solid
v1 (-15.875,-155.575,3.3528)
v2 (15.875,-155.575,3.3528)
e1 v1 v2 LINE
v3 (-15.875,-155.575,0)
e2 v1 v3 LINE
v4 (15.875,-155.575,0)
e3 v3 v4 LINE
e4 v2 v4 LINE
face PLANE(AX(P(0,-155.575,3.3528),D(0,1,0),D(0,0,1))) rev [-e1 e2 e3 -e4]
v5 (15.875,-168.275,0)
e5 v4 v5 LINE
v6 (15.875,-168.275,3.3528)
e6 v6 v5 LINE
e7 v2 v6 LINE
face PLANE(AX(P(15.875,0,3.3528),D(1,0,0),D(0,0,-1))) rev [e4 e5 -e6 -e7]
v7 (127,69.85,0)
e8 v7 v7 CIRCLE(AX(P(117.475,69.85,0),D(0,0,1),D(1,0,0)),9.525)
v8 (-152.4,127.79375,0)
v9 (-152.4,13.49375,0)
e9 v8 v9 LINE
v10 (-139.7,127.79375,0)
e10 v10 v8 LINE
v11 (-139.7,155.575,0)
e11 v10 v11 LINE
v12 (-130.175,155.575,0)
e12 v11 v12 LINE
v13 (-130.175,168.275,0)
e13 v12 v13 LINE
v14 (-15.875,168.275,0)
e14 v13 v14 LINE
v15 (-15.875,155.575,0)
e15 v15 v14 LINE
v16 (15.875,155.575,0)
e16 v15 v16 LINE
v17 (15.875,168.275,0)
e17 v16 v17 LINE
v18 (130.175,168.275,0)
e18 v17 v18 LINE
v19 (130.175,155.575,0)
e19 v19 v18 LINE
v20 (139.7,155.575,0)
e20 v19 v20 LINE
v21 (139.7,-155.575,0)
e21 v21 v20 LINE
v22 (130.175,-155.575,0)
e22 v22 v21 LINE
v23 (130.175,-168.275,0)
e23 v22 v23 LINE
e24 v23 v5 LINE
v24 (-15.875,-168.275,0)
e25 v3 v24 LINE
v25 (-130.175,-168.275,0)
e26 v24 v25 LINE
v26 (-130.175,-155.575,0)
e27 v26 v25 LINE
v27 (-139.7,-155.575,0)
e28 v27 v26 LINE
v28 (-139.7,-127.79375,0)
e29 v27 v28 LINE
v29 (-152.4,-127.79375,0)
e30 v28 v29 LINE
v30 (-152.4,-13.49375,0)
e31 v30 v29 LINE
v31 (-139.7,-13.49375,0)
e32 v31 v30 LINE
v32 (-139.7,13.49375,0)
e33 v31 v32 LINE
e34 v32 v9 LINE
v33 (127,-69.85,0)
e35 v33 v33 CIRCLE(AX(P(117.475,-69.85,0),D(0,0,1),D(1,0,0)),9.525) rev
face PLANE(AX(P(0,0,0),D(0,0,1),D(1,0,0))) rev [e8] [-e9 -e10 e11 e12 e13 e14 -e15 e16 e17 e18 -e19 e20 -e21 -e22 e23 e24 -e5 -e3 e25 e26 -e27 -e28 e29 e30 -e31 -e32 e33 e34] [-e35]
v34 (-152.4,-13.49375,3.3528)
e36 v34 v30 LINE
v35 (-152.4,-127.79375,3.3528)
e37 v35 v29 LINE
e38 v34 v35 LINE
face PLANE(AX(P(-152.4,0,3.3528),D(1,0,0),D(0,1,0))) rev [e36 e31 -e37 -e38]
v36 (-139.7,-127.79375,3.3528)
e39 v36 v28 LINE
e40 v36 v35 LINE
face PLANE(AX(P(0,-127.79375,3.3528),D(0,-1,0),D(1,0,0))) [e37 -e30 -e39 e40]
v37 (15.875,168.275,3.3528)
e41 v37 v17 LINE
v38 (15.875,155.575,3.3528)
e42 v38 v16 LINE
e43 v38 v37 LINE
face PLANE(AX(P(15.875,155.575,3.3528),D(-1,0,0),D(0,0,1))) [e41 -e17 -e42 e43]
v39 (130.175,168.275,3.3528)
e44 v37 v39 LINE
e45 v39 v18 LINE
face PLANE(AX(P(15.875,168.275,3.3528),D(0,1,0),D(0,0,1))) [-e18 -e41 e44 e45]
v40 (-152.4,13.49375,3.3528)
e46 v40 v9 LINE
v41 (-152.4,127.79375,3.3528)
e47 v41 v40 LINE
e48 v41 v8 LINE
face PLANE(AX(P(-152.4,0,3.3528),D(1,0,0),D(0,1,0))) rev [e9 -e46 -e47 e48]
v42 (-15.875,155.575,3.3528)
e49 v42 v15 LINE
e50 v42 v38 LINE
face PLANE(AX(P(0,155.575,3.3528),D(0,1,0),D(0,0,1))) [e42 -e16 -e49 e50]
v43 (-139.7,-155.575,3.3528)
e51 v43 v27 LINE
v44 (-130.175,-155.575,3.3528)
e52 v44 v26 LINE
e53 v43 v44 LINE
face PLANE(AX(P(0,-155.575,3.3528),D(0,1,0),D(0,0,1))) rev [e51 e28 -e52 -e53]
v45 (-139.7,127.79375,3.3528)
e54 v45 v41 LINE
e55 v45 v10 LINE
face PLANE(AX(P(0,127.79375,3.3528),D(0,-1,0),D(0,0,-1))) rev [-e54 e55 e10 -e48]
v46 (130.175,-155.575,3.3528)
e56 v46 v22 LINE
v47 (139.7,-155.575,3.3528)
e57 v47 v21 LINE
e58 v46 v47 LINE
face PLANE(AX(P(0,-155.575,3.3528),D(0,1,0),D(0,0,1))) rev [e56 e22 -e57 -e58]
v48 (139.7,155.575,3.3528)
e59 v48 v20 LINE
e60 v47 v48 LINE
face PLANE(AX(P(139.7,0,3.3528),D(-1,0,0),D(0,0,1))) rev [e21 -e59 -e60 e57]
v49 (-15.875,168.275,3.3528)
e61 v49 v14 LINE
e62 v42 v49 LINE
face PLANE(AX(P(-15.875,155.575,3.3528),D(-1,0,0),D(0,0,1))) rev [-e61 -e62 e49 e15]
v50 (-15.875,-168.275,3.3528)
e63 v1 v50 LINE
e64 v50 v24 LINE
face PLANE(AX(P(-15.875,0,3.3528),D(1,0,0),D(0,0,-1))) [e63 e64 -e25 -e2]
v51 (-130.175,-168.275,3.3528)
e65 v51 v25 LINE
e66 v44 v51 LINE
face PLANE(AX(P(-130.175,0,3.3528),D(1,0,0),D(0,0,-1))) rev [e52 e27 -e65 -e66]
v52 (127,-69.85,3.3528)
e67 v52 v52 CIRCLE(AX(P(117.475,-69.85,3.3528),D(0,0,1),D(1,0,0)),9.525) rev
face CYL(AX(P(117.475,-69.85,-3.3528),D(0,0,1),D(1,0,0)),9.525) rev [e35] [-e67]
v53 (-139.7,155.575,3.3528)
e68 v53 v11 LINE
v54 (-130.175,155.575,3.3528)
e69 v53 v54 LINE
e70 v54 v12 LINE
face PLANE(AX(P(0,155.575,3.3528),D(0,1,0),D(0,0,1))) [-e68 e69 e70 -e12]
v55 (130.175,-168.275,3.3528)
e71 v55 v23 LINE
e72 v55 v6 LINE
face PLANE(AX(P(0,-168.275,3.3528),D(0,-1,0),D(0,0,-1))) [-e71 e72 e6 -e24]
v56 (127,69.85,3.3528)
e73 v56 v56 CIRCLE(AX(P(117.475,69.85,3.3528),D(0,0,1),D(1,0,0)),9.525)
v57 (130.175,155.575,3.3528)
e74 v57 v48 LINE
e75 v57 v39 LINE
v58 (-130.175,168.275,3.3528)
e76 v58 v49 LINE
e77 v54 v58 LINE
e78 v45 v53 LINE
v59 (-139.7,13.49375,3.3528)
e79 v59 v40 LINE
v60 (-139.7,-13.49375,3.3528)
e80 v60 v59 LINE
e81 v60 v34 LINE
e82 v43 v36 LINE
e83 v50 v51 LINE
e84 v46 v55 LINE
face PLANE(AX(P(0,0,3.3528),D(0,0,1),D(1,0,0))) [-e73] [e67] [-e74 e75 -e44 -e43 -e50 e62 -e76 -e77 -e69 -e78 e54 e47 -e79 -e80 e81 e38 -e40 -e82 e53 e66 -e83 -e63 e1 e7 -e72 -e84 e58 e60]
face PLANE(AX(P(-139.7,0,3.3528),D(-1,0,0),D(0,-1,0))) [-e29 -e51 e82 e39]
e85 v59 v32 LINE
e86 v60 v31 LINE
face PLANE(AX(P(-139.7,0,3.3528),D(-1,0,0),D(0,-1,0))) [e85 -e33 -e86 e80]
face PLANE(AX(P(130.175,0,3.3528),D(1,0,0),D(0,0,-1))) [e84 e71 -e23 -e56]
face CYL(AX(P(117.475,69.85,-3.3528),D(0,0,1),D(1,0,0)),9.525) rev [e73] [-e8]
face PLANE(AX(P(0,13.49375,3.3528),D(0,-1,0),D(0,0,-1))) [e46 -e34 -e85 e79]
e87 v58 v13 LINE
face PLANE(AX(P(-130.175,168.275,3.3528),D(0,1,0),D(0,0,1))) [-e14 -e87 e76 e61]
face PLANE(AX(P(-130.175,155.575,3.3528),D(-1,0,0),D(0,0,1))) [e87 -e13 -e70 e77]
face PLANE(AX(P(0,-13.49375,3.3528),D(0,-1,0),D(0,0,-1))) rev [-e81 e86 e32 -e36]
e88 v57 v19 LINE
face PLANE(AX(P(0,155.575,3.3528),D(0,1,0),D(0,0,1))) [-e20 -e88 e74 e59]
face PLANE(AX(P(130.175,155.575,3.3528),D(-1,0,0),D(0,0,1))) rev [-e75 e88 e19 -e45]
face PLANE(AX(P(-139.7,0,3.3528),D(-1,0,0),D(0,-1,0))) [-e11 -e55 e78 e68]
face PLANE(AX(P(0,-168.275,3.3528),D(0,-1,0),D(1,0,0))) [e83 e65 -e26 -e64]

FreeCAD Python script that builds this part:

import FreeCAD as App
import Part
import Sketcher
Q = App.Units.Quantity

doc = App.newDocument("Part")
body = doc.addObject("PartDesign::Body", "Body")

# Sketch on XY plane
sketch1 = doc.addObject("Sketcher::SketchObject", "Sketch")
body.addObject(sketch1)
sketch1.AttachmentSupport = (doc.XY_Plane, [""])
sketch1.MapMode = "FlatFace"
sketch1.addGeometry([
    Part.LineSegment(App.Vector(-140, -128, 0), App.Vector(-140, -156, 0)),  # 0
    Part.LineSegment(App.Vector(-140, -156, 0), App.Vector(-130, -156, 0)),  # 1
    Part.LineSegment(App.Vector(-130, -156, 0), App.Vector(-130, -168, 0)),  # 2
    Part.LineSegment(App.Vector(-130, -168, 0), App.Vector(-16, -168, 0)),  # 3
    Part.LineSegment(App.Vector(-16, -168, 0), App.Vector(-16, -156, 0)),  # 4
    Part.LineSegment(App.Vector(-16, -156, 0), App.Vector(16, -156, 0)),  # 5
    Part.LineSegment(App.Vector(16, -156, 0), App.Vector(16, -168, 0)),  # 6
    Part.LineSegment(App.Vector(16, -168, 0), App.Vector(130, -168, 0)),  # 7
    Part.LineSegment(App.Vector(130, -168, 0), App.Vector(130, -156, 0)),  # 8
    Part.LineSegment(App.Vector(130, -156, 0), App.Vector(140, -156, 0)),  # 9
    Part.LineSegment(App.Vector(140, -156, 0), App.Vector(140, 156, 0)),  # 10
    Part.LineSegment(App.Vector(140, 156, 0), App.Vector(130, 156, 0)),  # 11
    Part.LineSegment(App.Vector(130, 156, 0), App.Vector(130, 168, 0)),  # 12
    Part.LineSegment(App.Vector(130, 168, 0), App.Vector(16, 168, 0)),  # 13
    Part.LineSegment(App.Vector(16, 168, 0), App.Vector(16, 156, 0)),  # 14
    Part.LineSegment(App.Vector(16, 156, 0), App.Vector(-16, 156, 0)),  # 15
    Part.LineSegment(App.Vector(-16, 156, 0), App.Vector(-16, 168, 0)),  # 16
    Part.LineSegment(App.Vector(-16, 168, 0), App.Vector(-130, 168, 0)),  # 17
    Part.LineSegment(App.Vector(-130, 168, 0), App.Vector(-130, 156, 0)),  # 18
    Part.LineSegment(App.Vector(-130, 156, 0), App.Vector(-140, 156, 0)),  # 19
    Part.LineSegment(App.Vector(-140, 156, 0), App.Vector(-140, 128, 0)),  # 20
    Part.LineSegment(App.Vector(-140, 128, 0), App.Vector(-152, 128, 0)),  # 21
    Part.LineSegment(App.Vector(-152, 128, 0), App.Vector(-152, 13, 0)),  # 22
    Part.LineSegment(App.Vector(-152, 13, 0), App.Vector(-140, 13, 0)),  # 23
    Part.LineSegment(App.Vector(-140, 13, 0), App.Vector(-140, -13, 0)),  # 24
    Part.LineSegment(App.Vector(-140, -13, 0), App.Vector(-152, -13, 0)),  # 25
    Part.LineSegment(App.Vector(-152, -13, 0), App.Vector(-152, -128, 0)),  # 26
    Part.LineSegment(App.Vector(-152, -128, 0), App.Vector(-140, -128, 0)),  # 27
], False)
sketch1.addConstraint([
    Sketcher.Constraint("Coincident", 0, 2, 1, 1),
    Sketcher.Constraint("Coincident", 1, 2, 2, 1),
    Sketcher.Constraint("Coincident", 2, 2, 3, 1),
    Sketcher.Constraint("Coincident", 3, 2, 4, 1),
    Sketcher.Constraint("Coincident", 4, 2, 5, 1),
    Sketcher.Constraint("Coincident", 5, 2, 6, 1),
    Sketcher.Constraint("Coincident", 6, 2, 7, 1),
    Sketcher.Constraint("Coincident", 7, 2, 8, 1),
    Sketcher.Constraint("Coincident", 8, 2, 9, 1),
    Sketcher.Constraint("Coincident", 9, 2, 10, 1),
    Sketcher.Constraint("Coincident", 10, 2, 11, 1),
    Sketcher.Constraint("Coincident", 11, 2, 12, 1),
    Sketcher.Constraint("Coincident", 12, 2, 13, 1),
    Sketcher.Constraint("Coincident", 13, 2, 14, 1),
    Sketcher.Constraint("Coincident", 14, 2, 15, 1),
    Sketcher.Constraint("Coincident", 15, 2, 16, 1),
    Sketcher.Constraint("Coincident", 16, 2, 17, 1),
    Sketcher.Constraint("Coincident", 17, 2, 18, 1),
    Sketcher.Constraint("Coincident", 18, 2, 19, 1),
    Sketcher.Constraint("Coincident", 19, 2, 20, 1),
    Sketcher.Constraint("Coincident", 20, 2, 21, 1),
    Sketcher.Constraint("Coincident", 21, 2, 22, 1),
    Sketcher.Constraint("Coincident", 22, 2, 23, 1),
    Sketcher.Constraint("Coincident", 23, 2, 24, 1),
    Sketcher.Constraint("Coincident", 24, 2, 25, 1),
    Sketcher.Constraint("Coincident", 25, 2, 26, 1),
    Sketcher.Constraint("Coincident", 26, 2, 27, 1),
    Sketcher.Constraint("Coincident", 27, 2, 0, 1),
    Sketcher.Constraint("Vertical", 0),
    Sketcher.Constraint("Horizontal", 1),
    Sketcher.Constraint("Vertical", 2),
    Sketcher.Constraint("Horizontal", 3),
    Sketcher.Constraint("Vertical", 4),
    Sketcher.Constraint("Horizontal", 5),
    Sketcher.Constraint("Vertical", 6),
    Sketcher.Constraint("Horizontal", 7),
    Sketcher.Constraint("Vertical", 8),
    Sketcher.Constraint("Horizontal", 9),
    Sketcher.Constraint("Vertical", 10),
    Sketcher.Constraint("Horizontal", 11),
    Sketcher.Constraint("Vertical", 12),
    Sketcher.Constraint("Horizontal", 13),
    Sketcher.Constraint("Vertical", 14),
    Sketcher.Constraint("Horizontal", 15),
    Sketcher.Constraint("Vertical", 16),
    Sketcher.Constraint("Horizontal", 17),
    Sketcher.Constraint("Vertical", 18),
    Sketcher.Constraint("Horizontal", 19),
    Sketcher.Constraint("Vertical", 20),
    Sketcher.Constraint("Horizontal", 21),
    Sketcher.Constraint("Vertical", 22),
    Sketcher.Constraint("Horizontal", 23),
    Sketcher.Constraint("Vertical", 24),
    Sketcher.Constraint("Horizontal", 25),
    Sketcher.Constraint("Vertical", 26),
    Sketcher.Constraint("Horizontal", 27),
    Sketcher.Constraint("Symmetric", 0, 2, 10, 2, -1, 1),
    Sketcher.Constraint("Symmetric", 2, 2, 12, 2, -1, 1),
    Sketcher.Constraint("Symmetric", 4, 2, 14, 2, -1, 1),
    Sketcher.Constraint("Symmetric", 6, 2, 16, 2, -1, 1),
    Sketcher.Constraint("Symmetric", 8, 2, 18, 2, -1, 1),
    Sketcher.Constraint("Symmetric", 3, 2, 6, 2, -2),
    Sketcher.Constraint("Symmetric", 1, 2, 8, 2, -2),
    Sketcher.Constraint("Symmetric", 22, 2, 25, 2, -1),
    Sketcher.Constraint("Symmetric", 20, 2, 27, 2, -1),
    Sketcher.Constraint("Horizontal", 1, 2, 4, 2),
    Sketcher.Constraint("Vertical", 20, 2, 23, 2),
    Sketcher.Constraint("Equal", 27, 2),
    Sketcher.Constraint("Equal", 17, 22),
    Sketcher.Constraint("DistanceX", 3, 1, 3, 2, Q("4.5 in")),
    Sketcher.Constraint("DistanceX", 21, 2, 21, 1, Q("0.5 in")),
    Sketcher.Constraint("DistanceX", 21, 2, -1, 1, Q("6 in")),
    Sketcher.Constraint("DistanceX", 5, 1, 5, 2, Q("1.25 in")),
    Sketcher.Constraint("DistanceY", 10, 1, 10, 2, Q("12.25 in")),
    Sketcher.Constraint("DistanceY", 0, 2, 0, 1, Q("1.09375 in")),
])
pad1 = doc.addObject("PartDesign::Pad", "Pad")
body.addObject(pad1)
pad1.Profile = sketch1
pad1.Length = Q("0.132 in")

# Sketch on XY plane
sketch2 = doc.addObject("Sketcher::SketchObject", "Sketch001")
body.addObject(sketch2)
sketch2.AttachmentSupport = (doc.XY_Plane, [""])
sketch2.MapMode = "FlatFace"
sketch2.AttachmentOffset = App.Placement(App.Vector(0, 0, 0.132 * 25.4), App.Rotation())
sketch2.addGeometry([
    Part.Circle(App.Vector(117, 70, 0), App.Vector(0, 0, 1), 10),
    Part.Circle(App.Vector(117, -70, 0), App.Vector(0, 0, 1), 10),
], False)
sketch2.addConstraint([
    Sketcher.Constraint("Equal", 0, 1),
    Sketcher.Constraint("Symmetric", 0, 3, 1, 3, -1),
    Sketcher.Constraint("Diameter", 0, Q("0.75 in")),
    Sketcher.Constraint("DistanceY", 1, 3, 0, 3, Q("5.5 in")),
    Sketcher.Constraint("DistanceX", -1, 1, 0, 3, Q("4.625 in")),
])
pocket1 = doc.addObject("PartDesign::Pocket", "Pocket")
body.addObject(pocket1)
pocket1.Profile = sketch2
pocket1.Length = Q("0.264 in")

doc.recompute()
